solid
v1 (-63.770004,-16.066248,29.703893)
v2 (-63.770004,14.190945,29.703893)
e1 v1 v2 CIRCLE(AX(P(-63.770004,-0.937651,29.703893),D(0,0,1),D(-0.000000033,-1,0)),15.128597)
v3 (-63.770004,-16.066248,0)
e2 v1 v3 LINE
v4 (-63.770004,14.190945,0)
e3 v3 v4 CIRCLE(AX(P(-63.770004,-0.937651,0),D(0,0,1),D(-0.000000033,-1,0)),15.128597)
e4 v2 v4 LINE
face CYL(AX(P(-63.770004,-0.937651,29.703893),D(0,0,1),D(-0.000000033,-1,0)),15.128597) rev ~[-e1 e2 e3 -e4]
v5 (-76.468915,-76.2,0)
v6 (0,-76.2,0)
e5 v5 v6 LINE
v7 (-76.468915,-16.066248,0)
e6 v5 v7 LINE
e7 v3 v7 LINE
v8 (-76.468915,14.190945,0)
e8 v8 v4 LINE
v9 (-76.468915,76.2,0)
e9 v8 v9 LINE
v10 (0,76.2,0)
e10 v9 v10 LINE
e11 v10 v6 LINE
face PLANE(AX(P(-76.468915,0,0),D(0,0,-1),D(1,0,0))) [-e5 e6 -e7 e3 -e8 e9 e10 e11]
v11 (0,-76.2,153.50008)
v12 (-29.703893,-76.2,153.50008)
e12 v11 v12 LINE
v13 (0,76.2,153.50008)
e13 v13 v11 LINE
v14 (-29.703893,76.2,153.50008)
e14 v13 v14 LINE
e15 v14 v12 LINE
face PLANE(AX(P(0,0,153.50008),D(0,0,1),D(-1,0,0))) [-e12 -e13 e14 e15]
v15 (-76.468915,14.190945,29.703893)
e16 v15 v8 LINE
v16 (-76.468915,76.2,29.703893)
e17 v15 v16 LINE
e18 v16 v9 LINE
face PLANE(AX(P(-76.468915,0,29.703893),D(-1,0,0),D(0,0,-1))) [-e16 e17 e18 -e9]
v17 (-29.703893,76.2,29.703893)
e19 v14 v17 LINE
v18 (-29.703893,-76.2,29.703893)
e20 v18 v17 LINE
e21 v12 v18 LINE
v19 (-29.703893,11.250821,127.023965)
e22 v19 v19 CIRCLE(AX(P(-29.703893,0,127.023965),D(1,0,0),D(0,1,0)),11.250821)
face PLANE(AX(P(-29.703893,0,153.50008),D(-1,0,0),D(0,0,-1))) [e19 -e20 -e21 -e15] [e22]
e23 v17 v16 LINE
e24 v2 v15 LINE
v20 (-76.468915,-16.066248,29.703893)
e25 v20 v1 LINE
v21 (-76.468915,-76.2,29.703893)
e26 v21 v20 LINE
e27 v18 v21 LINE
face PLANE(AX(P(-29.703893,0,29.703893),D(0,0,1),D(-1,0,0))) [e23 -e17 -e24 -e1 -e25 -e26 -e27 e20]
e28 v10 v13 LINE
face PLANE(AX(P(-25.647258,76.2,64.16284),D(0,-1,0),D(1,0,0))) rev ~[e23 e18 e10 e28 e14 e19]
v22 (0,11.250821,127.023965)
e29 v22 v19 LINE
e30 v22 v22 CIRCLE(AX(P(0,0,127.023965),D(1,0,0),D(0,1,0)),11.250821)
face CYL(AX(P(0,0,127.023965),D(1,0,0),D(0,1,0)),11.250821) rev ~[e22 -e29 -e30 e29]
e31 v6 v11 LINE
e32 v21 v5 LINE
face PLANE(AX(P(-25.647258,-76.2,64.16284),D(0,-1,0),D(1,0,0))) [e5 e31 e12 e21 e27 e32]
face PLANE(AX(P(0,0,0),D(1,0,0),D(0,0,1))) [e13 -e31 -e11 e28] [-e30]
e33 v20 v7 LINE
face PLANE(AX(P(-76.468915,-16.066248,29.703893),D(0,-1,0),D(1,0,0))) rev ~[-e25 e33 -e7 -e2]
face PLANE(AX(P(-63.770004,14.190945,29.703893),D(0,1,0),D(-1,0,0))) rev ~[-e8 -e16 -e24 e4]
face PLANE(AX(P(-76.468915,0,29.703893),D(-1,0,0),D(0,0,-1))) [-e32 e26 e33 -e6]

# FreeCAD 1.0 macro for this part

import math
import FreeCAD as App
import Part
import Sketcher

V = App.Vector
Q = App.Units.Quantity


def add_polygon(sketch, points):
    """Adds a closed chain of lines whose ends are joined by coincident constraints."""
    first, n = sketch.GeometryCount, len(points)
    for a, b in zip(points, points[1:] + points[:1]):
        sketch.addGeometry(Part.LineSegment(App.Vector(*a, 0), App.Vector(*b, 0)), False)
    for i in range(n):
        sketch.addConstraint(Sketcher.Constraint("Coincident", first + i, 2, first + (i + 1) % n, 1))

doc = App.newDocument("Part")
body = doc.addObject("PartDesign::Body", "Body")

# Sketch on XZ plane
sketch1 = body.newObject("Sketcher::SketchObject", "Sketch")
sketch1.AttachmentSupport = (doc.getObject("XZ_Plane"), [""])
sketch1.MapMode = "FlatFace"
add_polygon(sketch1, [(-76.468915, 0), (0, 0), (0, 153.50008), (-29.703893, 153.50008), (-29.703893, 29.703893), (-76.468915, 29.703893)])  # lines 0-5
sketch1.addConstraint([
    Sketcher.Constraint("Horizontal", 0),
    Sketcher.Constraint("Vertical", 1),
    Sketcher.Constraint("Horizontal", 2),
    Sketcher.Constraint("Vertical", 3),
    Sketcher.Constraint("Horizontal", 4),
    Sketcher.Constraint("Vertical", 5),
    Sketcher.Constraint("Coincident", 0, 2, -1, 1),
    Sketcher.Constraint("Equal", 2, 5),
    Sketcher.Constraint("DistanceX", 4, 2, 4, 1, Q("46.765022 mm")),
    Sketcher.Constraint("DistanceY", 1, 1, 1, 2, Q("153.50008 mm")),
    Sketcher.Constraint("DistanceX", 0, 1, 0, 2, Q("76.468915 mm")),
])
pad1 = body.newObject("PartDesign::Pad", "Pad")
pad1.Profile = sketch1
pad1.Length = Q("6 in")
pad1.Midplane = True

# Sketch on YZ plane
sketch2 = body.newObject("Sketcher::SketchObject", "Sketch001")
sketch2.AttachmentSupport = (doc.getObject("YZ_Plane"), [""])
sketch2.MapMode = "FlatFace"
sketch2.addGeometry(Part.Circle(V(0, 127.023965, 0), V(0, 0, 1), 11.250821), False)
sketch2.addConstraint([
    Sketcher.Constraint("PointOnObject", 0, 3, -2),
    Sketcher.Constraint("Diameter", 0, Q("22.501642 mm")),
    Sketcher.Constraint("DistanceY", -1, 1, 0, 3, Q("127.023965 mm")),
])
pocket1 = body.newObject("PartDesign::Pocket", "Pocket")
pocket1.Profile = sketch2
pocket1.Type = "ThroughAll"

# Sketch on XY plane
sketch3 = body.newObject("Sketcher::SketchObject", "Sketch002")
sketch3.AttachmentSupport = (doc.getObject("XY_Plane"), [""])
sketch3.MapMode = "FlatFace"
sketch3.AttachmentOffset = App.Placement(V(0, 0, 29.703893), App.Rotation())
sketch3.addGeometry([
    Part.LineSegment(V(-76.468915, -16.066248, 0), V(-63.770004, -16.066248, 0)),
    Part.ArcOfCircle(Part.Circle(V(-63.770004, -0.937651, 0), V(0, 0, 1), 15.128597), math.radians(-90.000002), math.radians(90.000002)),
    Part.LineSegment(V(-63.770004, 14.190945, 0), V(-76.468915, 14.190945, 0)),
    Part.LineSegment(V(-76.468915, 14.190945, 0), V(-76.468915, -16.066248, 0)),
], False)
sketch3.addConstraint([
    Sketcher.Constraint("Tangent", 0, 2, 1, 1),
    Sketcher.Constraint("Tangent", 1, 2, 2, 1),
    Sketcher.Constraint("Coincident", 2, 2, 3, 1),
    Sketcher.Constraint("Coincident", 3, 2, 0, 1),
    Sketcher.Constraint("Horizontal", 0),
    Sketcher.Constraint("Horizontal", 2),
    Sketcher.Constraint("Vertical", 3),
    Sketcher.Constraint("Radius", 1, Q("15.128597 mm")),
    Sketcher.Constraint("DistanceX", 0, 1, 0, 2, Q("12.698911 mm")),
    Sketcher.Constraint("DistanceY", 1, 3, -1, 1, Q("0.937651 mm")),
    Sketcher.Constraint("DistanceX", 1, 3, -1, 1, Q("63.770004 mm")),
])
pocket2 = body.newObject("PartDesign::Pocket", "Pocket001")
pocket2.Profile = sketch3
pocket2.Type = "ThroughAll"

doc.recompute()
